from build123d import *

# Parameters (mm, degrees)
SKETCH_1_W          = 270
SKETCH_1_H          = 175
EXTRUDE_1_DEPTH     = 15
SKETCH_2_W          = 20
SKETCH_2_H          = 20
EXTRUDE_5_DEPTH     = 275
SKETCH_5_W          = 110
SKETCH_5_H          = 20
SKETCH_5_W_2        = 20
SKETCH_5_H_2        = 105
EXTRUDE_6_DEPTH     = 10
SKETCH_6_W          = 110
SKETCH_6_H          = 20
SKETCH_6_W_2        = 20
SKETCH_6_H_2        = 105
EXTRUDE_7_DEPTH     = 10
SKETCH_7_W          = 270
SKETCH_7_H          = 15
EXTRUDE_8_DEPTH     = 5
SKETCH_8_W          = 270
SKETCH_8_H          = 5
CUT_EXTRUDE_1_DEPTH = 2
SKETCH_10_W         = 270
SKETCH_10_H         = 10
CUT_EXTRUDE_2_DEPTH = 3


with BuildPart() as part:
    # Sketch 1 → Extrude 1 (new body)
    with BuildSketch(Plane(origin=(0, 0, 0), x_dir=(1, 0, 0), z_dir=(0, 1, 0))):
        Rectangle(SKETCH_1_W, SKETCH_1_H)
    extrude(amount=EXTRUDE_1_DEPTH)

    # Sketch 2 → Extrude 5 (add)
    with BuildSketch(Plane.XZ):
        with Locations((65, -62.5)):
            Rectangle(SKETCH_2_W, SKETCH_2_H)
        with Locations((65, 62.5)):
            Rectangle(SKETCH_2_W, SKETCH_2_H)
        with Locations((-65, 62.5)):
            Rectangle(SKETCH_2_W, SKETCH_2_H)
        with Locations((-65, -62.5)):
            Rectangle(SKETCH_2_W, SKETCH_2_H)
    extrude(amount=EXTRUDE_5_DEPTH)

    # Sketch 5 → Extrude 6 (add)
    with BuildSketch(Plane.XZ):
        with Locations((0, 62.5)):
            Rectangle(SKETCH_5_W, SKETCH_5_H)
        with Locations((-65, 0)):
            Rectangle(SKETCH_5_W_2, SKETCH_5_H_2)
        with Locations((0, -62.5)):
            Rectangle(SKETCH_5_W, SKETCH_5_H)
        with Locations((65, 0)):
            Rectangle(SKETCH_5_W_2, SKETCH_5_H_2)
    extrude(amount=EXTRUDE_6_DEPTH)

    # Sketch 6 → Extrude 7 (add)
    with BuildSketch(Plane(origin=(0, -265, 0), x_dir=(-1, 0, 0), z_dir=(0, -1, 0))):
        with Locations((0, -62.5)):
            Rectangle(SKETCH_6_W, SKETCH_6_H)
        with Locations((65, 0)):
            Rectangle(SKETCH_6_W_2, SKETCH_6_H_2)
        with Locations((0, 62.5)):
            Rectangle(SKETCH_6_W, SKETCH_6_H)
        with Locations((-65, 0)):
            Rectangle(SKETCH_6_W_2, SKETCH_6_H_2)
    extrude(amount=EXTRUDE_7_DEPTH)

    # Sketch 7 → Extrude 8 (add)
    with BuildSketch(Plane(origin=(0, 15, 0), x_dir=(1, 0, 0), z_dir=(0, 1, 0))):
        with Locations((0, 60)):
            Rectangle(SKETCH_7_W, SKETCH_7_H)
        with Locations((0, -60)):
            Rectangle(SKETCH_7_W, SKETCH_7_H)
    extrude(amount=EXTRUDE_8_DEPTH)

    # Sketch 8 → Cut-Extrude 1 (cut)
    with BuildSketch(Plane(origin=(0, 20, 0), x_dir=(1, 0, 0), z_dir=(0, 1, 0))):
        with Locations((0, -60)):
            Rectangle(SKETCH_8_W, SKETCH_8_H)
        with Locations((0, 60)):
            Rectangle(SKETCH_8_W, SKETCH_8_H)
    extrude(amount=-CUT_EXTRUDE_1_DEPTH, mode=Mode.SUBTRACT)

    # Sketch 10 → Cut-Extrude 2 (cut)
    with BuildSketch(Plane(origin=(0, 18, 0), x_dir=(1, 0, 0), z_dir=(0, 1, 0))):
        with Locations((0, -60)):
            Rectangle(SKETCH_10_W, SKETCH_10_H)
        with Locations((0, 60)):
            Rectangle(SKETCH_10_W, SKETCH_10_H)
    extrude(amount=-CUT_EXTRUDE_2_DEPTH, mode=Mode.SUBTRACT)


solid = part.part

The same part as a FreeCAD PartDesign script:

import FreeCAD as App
import Part
import Sketcher
from FreeCAD import Vector
Q = App.Units.Quantity

doc = App.newDocument("Part")
body = doc.addObject("PartDesign::Body", "Body")

sketch1 = body.newObject("Sketcher::SketchObject", "Sketch")
sketch1.AttachmentSupport = (doc.getObject("XZ_Plane"), [""])
sketch1.MapMode = "FlatFace"
sketch1.addGeometry(Part.LineSegment(Vector(-135, -88, 0), Vector(-135, 88, 0)), False)
sketch1.addGeometry(Part.LineSegment(Vector(-135, 88, 0), Vector(135, 88, 0)), False)
sketch1.addGeometry(Part.LineSegment(Vector(135, 88, 0), Vector(135, -88, 0)), False)
sketch1.addGeometry(Part.LineSegment(Vector(135, -88, 0), Vector(-135, -88, 0)), False)
sketch1.addConstraint(Sketcher.Constraint("Coincident", 0, 2, 1, 1))
sketch1.addConstraint(Sketcher.Constraint("Coincident", 1, 2, 2, 1))
sketch1.addConstraint(Sketcher.Constraint("Coincident", 2, 2, 3, 1))
sketch1.addConstraint(Sketcher.Constraint("Coincident", 3, 2, 0, 1))
sketch1.addConstraint(Sketcher.Constraint("Vertical", 0))
sketch1.addConstraint(Sketcher.Constraint("Horizontal", 1))
sketch1.addConstraint(Sketcher.Constraint("Vertical", 2))
sketch1.addConstraint(Sketcher.Constraint("Horizontal", 3))
sketch1.addConstraint(Sketcher.Constraint("Symmetric", 0, 2, 2, 2, -1, 1))
sketch1.addConstraint(Sketcher.Constraint("DistanceX", 1, 1, 1, 2, Q("270 mm")))
sketch1.addConstraint(Sketcher.Constraint("DistanceY", 0, 1, 0, 2, Q("175 mm")))
pad1 = body.newObject("PartDesign::Pad", "Pad")
pad1.Profile = sketch1
pad1.Length = 15
pad1.Reversed = True

sketch2 = body.newObject("Sketcher::SketchObject", "Sketch001")
sketch2.AttachmentSupport = (doc.getObject("XZ_Plane"), [""])
sketch2.MapMode = "FlatFace"
sketch2.addGeometry(Part.LineSegment(Vector(55, -52, 0), Vector(55, -72, 0)), False)
sketch2.addGeometry(Part.LineSegment(Vector(55, -72, 0), Vector(75, -72, 0)), False)
sketch2.addGeometry(Part.LineSegment(Vector(75, -72, 0), Vector(75, -52, 0)), False)
sketch2.addGeometry(Part.LineSegment(Vector(75, -52, 0), Vector(55, -52, 0)), False)
sketch2.addGeometry(Part.LineSegment(Vector(55, 72, 0), Vector(55, 52, 0)), False)
sketch2.addGeometry(Part.LineSegment(Vector(55, 52, 0), Vector(75, 52, 0)), False)
sketch2.addGeometry(Part.LineSegment(Vector(75, 52, 0), Vector(75, 72, 0)), False)
sketch2.addGeometry(Part.LineSegment(Vector(75, 72, 0), Vector(55, 72, 0)), False)
sketch2.addGeometry(Part.LineSegment(Vector(-75, 72, 0), Vector(-75, 52, 0)), False)
sketch2.addGeometry(Part.LineSegment(Vector(-75, 52, 0), Vector(-55, 52, 0)), False)
sketch2.addGeometry(Part.LineSegment(Vector(-55, 52, 0), Vector(-55, 72, 0)), False)
sketch2.addGeometry(Part.LineSegment(Vector(-55, 72, 0), Vector(-75, 72, 0)), False)
sketch2.addGeometry(Part.LineSegment(Vector(-75, -52, 0), Vector(-75, -72, 0)), False)
sketch2.addGeometry(Part.LineSegment(Vector(-75, -72, 0), Vector(-55, -72, 0)), False)
sketch2.addGeometry(Part.LineSegment(Vector(-55, -72, 0), Vector(-55, -52, 0)), False)
sketch2.addGeometry(Part.LineSegment(Vector(-55, -52, 0), Vector(-75, -52, 0)), False)
sketch2.addConstraint(Sketcher.Constraint("Coincident", 0, 2, 1, 1))
sketch2.addConstraint(Sketcher.Constraint("Coincident", 1, 2, 2, 1))
sketch2.addConstraint(Sketcher.Constraint("Coincident", 2, 2, 3, 1))
sketch2.addConstraint(Sketcher.Constraint("Coincident", 3, 2, 0, 1))
sketch2.addConstraint(Sketcher.Constraint("Coincident", 4, 2, 5, 1))
sketch2.addConstraint(Sketcher.Constraint("Coincident", 5, 2, 6, 1))
sketch2.addConstraint(Sketcher.Constraint("Coincident", 6, 2, 7, 1))
sketch2.addConstraint(Sketcher.Constraint("Coincident", 7, 2, 4, 1))
sketch2.addConstraint(Sketcher.Constraint("Coincident", 8, 2, 9, 1))
sketch2.addConstraint(Sketcher.Constraint("Coincident", 9, 2, 10, 1))
sketch2.addConstraint(Sketcher.Constraint("Coincident", 10, 2, 11, 1))
sketch2.addConstraint(Sketcher.Constraint("Coincident", 11, 2, 8, 1))
sketch2.addConstraint(Sketcher.Constraint("Coincident", 12, 2, 13, 1))
sketch2.addConstraint(Sketcher.Constraint("Coincident", 13, 2, 14, 1))
sketch2.addConstraint(Sketcher.Constraint("Coincident", 14, 2, 15, 1))
sketch2.addConstraint(Sketcher.Constraint("Coincident", 15, 2, 12, 1))
sketch2.addConstraint(Sketcher.Constraint("Vertical", 0))
sketch2.addConstraint(Sketcher.Constraint("Horizontal", 1))
sketch2.addConstraint(Sketcher.Constraint("Vertical", 2))
sketch2.addConstraint(Sketcher.Constraint("Horizontal", 3))
sketch2.addConstraint(Sketcher.Constraint("Vertical", 4))
sketch2.addConstraint(Sketcher.Constraint("Horizontal", 5))
sketch2.addConstraint(Sketcher.Constraint("Vertical", 6))
sketch2.addConstraint(Sketcher.Constraint("Horizontal", 7))
sketch2.addConstraint(Sketcher.Constraint("Vertical", 8))
sketch2.addConstraint(Sketcher.Constraint("Horizontal", 9))
sketch2.addConstraint(Sketcher.Constraint("Vertical", 10))
sketch2.addConstraint(Sketcher.Constraint("Horizontal", 11))
sketch2.addConstraint(Sketcher.Constraint("Vertical", 12))
sketch2.addConstraint(Sketcher.Constraint("Horizontal", 13))
sketch2.addConstraint(Sketcher.Constraint("Vertical", 14))
sketch2.addConstraint(Sketcher.Constraint("Horizontal", 15))
sketch2.addConstraint(Sketcher.Constraint("Symmetric", 2, 2, 8, 2, -1, 1))
sketch2.addConstraint(Sketcher.Constraint("Symmetric", 0, 2, 10, 2, -1, 1))
sketch2.addConstraint(Sketcher.Constraint("Symmetric", 6, 2, 12, 2, -1, 1))
sketch2.addConstraint(Sketcher.Constraint("Symmetric", 4, 2, 14, 2, -1, 1))
sketch2.addConstraint(Sketcher.Constraint("Symmetric", 5, 2, 8, 2, -2))
sketch2.addConstraint(Sketcher.Constraint("Symmetric", 7, 2, 10, 2, -2))
sketch2.addConstraint(Sketcher.Constraint("Equal", 15, 0))
sketch2.addConstraint(Sketcher.Constraint("DistanceX", 1, 1, 1, 2, Q("20 mm")))
sketch2.addConstraint(Sketcher.Constraint("DistanceX", -1, 1, 0, 2, Q("55 mm")))
sketch2.addConstraint(Sketcher.Constraint("DistanceY", 3, 2, 4, 2, Q("105 mm")))
pad2 = body.newObject("PartDesign::Pad", "Pad001")
pad2.Profile = sketch2
pad2.Length = 275

sketch3 = body.newObject("Sketcher::SketchObject", "Sketch002")
sketch3.AttachmentSupport = (doc.getObject("XZ_Plane"), [""])
sketch3.MapMode = "FlatFace"
sketch3.addGeometry(Part.LineSegment(Vector(-55, 72, 0), Vector(-55, 52, 0)), False)
sketch3.addGeometry(Part.LineSegment(Vector(-55, 52, 0), Vector(55, 52, 0)), False)
sketch3.addGeometry(Part.LineSegment(Vector(55, 52, 0), Vector(55, 72, 0)), False)
sketch3.addGeometry(Part.LineSegment(Vector(55, 72, 0), Vector(-55, 72, 0)), False)
sketch3.addGeometry(Part.LineSegment(Vector(-75, 52, 0), Vector(-75, -52, 0)), False)
sketch3.addGeometry(Part.LineSegment(Vector(-75, -52, 0), Vector(-55, -52, 0)), False)
sketch3.addGeometry(Part.LineSegment(Vector(-55, -52, 0), Vector(-55, 52, 0)), False)
sketch3.addGeometry(Part.LineSegment(Vector(-55, 52, 0), Vector(-75, 52, 0)), False)
sketch3.addGeometry(Part.LineSegment(Vector(-55, -52, 0), Vector(-55, -72, 0)), False)
sketch3.addGeometry(Part.LineSegment(Vector(-55, -72, 0), Vector(55, -72, 0)), False)
sketch3.addGeometry(Part.LineSegment(Vector(55, -72, 0), Vector(55, -52, 0)), False)
sketch3.addGeometry(Part.LineSegment(Vector(55, -52, 0), Vector(-55, -52, 0)), False)
sketch3.addGeometry(Part.LineSegment(Vector(55, 52, 0), Vector(55, -52, 0)), False)
sketch3.addGeometry(Part.LineSegment(Vector(55, -52, 0), Vector(75, -52, 0)), False)
sketch3.addGeometry(Part.LineSegment(Vector(75, -52, 0), Vector(75, 52, 0)), False)
sketch3.addGeometry(Part.LineSegment(Vector(75, 52, 0), Vector(55, 52, 0)), False)
sketch3.addConstraint(Sketcher.Constraint("Coincident", 0, 2, 1, 1))
sketch3.addConstraint(Sketcher.Constraint("Coincident", 1, 2, 2, 1))
sketch3.addConstraint(Sketcher.Constraint("Coincident", 2, 2, 3, 1))
sketch3.addConstraint(Sketcher.Constraint("Coincident", 3, 2, 0, 1))
sketch3.addConstraint(Sketcher.Constraint("Coincident", 4, 2, 5, 1))
sketch3.addConstraint(Sketcher.Constraint("Coincident", 5, 2, 6, 1))
sketch3.addConstraint(Sketcher.Constraint("Coincident", 6, 2, 7, 1))
sketch3.addConstraint(Sketcher.Constraint("Coincident", 7, 2, 4, 1))
sketch3.addConstraint(Sketcher.Constraint("Coincident", 8, 2, 9, 1))
sketch3.addConstraint(Sketcher.Constraint("Coincident", 9, 2, 10, 1))
sketch3.addConstraint(Sketcher.Constraint("Coincident", 10, 2, 11, 1))
sketch3.addConstraint(Sketcher.Constraint("Coincident", 11, 2, 8, 1))
sketch3.addConstraint(Sketcher.Constraint("Coincident", 12, 2, 13, 1))
sketch3.addConstraint(Sketcher.Constraint("Coincident", 13, 2, 14, 1))
sketch3.addConstraint(Sketcher.Constraint("Coincident", 14, 2, 15, 1))
sketch3.addConstraint(Sketcher.Constraint("Coincident", 15, 2, 12, 1))
sketch3.addConstraint(Sketcher.Constraint("Vertical", 0))
sketch3.addConstraint(Sketcher.Constraint("Horizontal", 1))
sketch3.addConstraint(Sketcher.Constraint("Vertical", 2))
sketch3.addConstraint(Sketcher.Constraint("Horizontal", 3))
sketch3.addConstraint(Sketcher.Constraint("Vertical", 4))
sketch3.addConstraint(Sketcher.Constraint("Horizontal", 5))
sketch3.addConstraint(Sketcher.Constraint("Vertical", 6))
sketch3.addConstraint(Sketcher.Constraint("Horizontal", 7))
sketch3.addConstraint(Sketcher.Constraint("Vertical", 8))
sketch3.addConstraint(Sketcher.Constraint("Horizontal", 9))
sketch3.addConstraint(Sketcher.Constraint("Vertical", 10))
sketch3.addConstraint(Sketcher.Constraint("Horizontal", 11))
sketch3.addConstraint(Sketcher.Constraint("Vertical", 12))
sketch3.addConstraint(Sketcher.Constraint("Horizontal", 13))
sketch3.addConstraint(Sketcher.Constraint("Vertical", 14))
sketch3.addConstraint(Sketcher.Constraint("Horizontal", 15))
sketch3.addConstraint(Sketcher.Constraint("Coincident", 6, 2, 0, 2))
sketch3.addConstraint(Sketcher.Constraint("Coincident", 11, 2, 5, 2))
sketch3.addConstraint(Sketcher.Constraint("Coincident", 12, 2, 10, 2))
sketch3.addConstraint(Sketcher.Constraint("Coincident", 15, 2, 1, 2))
sketch3.addConstraint(Sketcher.Constraint("Symmetric", 1, 2, 5, 2, -1, 1))
sketch3.addConstraint(Sketcher.Constraint("Equal", 7, 13))
sketch3.addConstraint(Sketcher.Constraint("Equal", 15, 0))
sketch3.addConstraint(Sketcher.Constraint("Equal", 2, 8))
sketch3.addConstraint(Sketcher.Constraint("DistanceX", 1, 1, 1, 2, Q("110 mm")))
sketch3.addConstraint(Sketcher.Constraint("DistanceX", 5, 1, 5, 2, Q("20 mm")))
sketch3.addConstraint(Sketcher.Constraint("DistanceY", 4, 2, 4, 1, Q("105 mm")))
pad3 = body.newObject("PartDesign::Pad", "Pad002")
pad3.Profile = sketch3
pad3.Length = 10

sketch4 = body.newObject("Sketcher::SketchObject", "Sketch003")
sketch4.AttachmentSupport = (doc.getObject("XZ_Plane"), [""])
sketch4.MapMode = "FlatFace"
sketch4.AttachmentOffset = App.Placement(Vector(0, 0, 265), App.Rotation())
sketch4.addGeometry(Part.LineSegment(Vector(55, 52, 0), Vector(55, 72, 0)), False)
sketch4.addGeometry(Part.LineSegment(Vector(55, 72, 0), Vector(-55, 72, 0)), False)
sketch4.addGeometry(Part.LineSegment(Vector(-55, 72, 0), Vector(-55, 52, 0)), False)
sketch4.addGeometry(Part.LineSegment(Vector(-55, 52, 0), Vector(55, 52, 0)), False)
sketch4.addGeometry(Part.LineSegment(Vector(-55, -52, 0), Vector(-55, 52, 0)), False)
sketch4.addGeometry(Part.LineSegment(Vector(-55, 52, 0), Vector(-75, 52, 0)), False)
sketch4.addGeometry(Part.LineSegment(Vector(-75, 52, 0), Vector(-75, -52, 0)), False)
sketch4.addGeometry(Part.LineSegment(Vector(-75, -52, 0), Vector(-55, -52, 0)), False)
sketch4.addGeometry(Part.LineSegment(Vector(55, -72, 0), Vector(55, -52, 0)), False)
sketch4.addGeometry(Part.LineSegment(Vector(55, -52, 0), Vector(-55, -52, 0)), False)
sketch4.addGeometry(Part.LineSegment(Vector(-55, -52, 0), Vector(-55, -72, 0)), False)
sketch4.addGeometry(Part.LineSegment(Vector(-55, -72, 0), Vector(55, -72, 0)), False)
sketch4.addGeometry(Part.LineSegment(Vector(75, -52, 0), Vector(75, 52, 0)), False)
sketch4.addGeometry(Part.LineSegment(Vector(75, 52, 0), Vector(55, 52, 0)), False)
sketch4.addGeometry(Part.LineSegment(Vector(55, 52, 0), Vector(55, -52, 0)), False)
sketch4.addGeometry(Part.LineSegment(Vector(55, -52, 0), Vector(75, -52, 0)), False)
sketch4.addConstraint(Sketcher.Constraint("Coincident", 0, 2, 1, 1))
sketch4.addConstraint(Sketcher.Constraint("Coincident", 1, 2, 2, 1))
sketch4.addConstraint(Sketcher.Constraint("Coincident", 2, 2, 3, 1))
sketch4.addConstraint(Sketcher.Constraint("Coincident", 3, 2, 0, 1))
sketch4.addConstraint(Sketcher.Constraint("Coincident", 4, 2, 5, 1))
sketch4.addConstraint(Sketcher.Constraint("Coincident", 5, 2, 6, 1))
sketch4.addConstraint(Sketcher.Constraint("Coincident", 6, 2, 7, 1))
sketch4.addConstraint(Sketcher.Constraint("Coincident", 7, 2, 4, 1))
sketch4.addConstraint(Sketcher.Constraint("Coincident", 8, 2, 9, 1))
sketch4.addConstraint(Sketcher.Constraint("Coincident", 9, 2, 10, 1))
sketch4.addConstraint(Sketcher.Constraint("Coincident", 10, 2, 11, 1))
sketch4.addConstraint(Sketcher.Constraint("Coincident", 11, 2, 8, 1))
sketch4.addConstraint(Sketcher.Constraint("Coincident", 12, 2, 13, 1))
sketch4.addConstraint(Sketcher.Constraint("Coincident", 13, 2, 14, 1))
sketch4.addConstraint(Sketcher.Constraint("Coincident", 14, 2, 15, 1))
sketch4.addConstraint(Sketcher.Constraint("Coincident", 15, 2, 12, 1))
sketch4.addConstraint(Sketcher.Constraint("Vertical", 0))
sketch4.addConstraint(Sketcher.Constraint("Horizontal", 1))
sketch4.addConstraint(Sketcher.Constraint("Vertical", 2))
sketch4.addConstraint(Sketcher.Constraint("Horizontal", 3))
sketch4.addConstraint(Sketcher.Constraint("Vertical", 4))
sketch4.addConstraint(Sketcher.Constraint("Horizontal", 5))
sketch4.addConstraint(Sketcher.Constraint("Vertical", 6))
sketch4.addConstraint(Sketcher.Constraint("Horizontal", 7))
sketch4.addConstraint(Sketcher.Constraint("Vertical", 8))
sketch4.addConstraint(Sketcher.Constraint("Horizontal", 9))
sketch4.addConstraint(Sketcher.Constraint("Vertical", 10))
sketch4.addConstraint(Sketcher.Constraint("Horizontal", 11))
sketch4.addConstraint(Sketcher.Constraint("Vertical", 12))
sketch4.addConstraint(Sketcher.Constraint("Horizontal", 13))
sketch4.addConstraint(Sketcher.Constraint("Vertical", 14))
sketch4.addConstraint(Sketcher.Constraint("Horizontal", 15))
sketch4.addConstraint(Sketcher.Constraint("Coincident", 4, 2, 2, 2))
sketch4.addConstraint(Sketcher.Constraint("Coincident", 9, 2, 7, 2))
sketch4.addConstraint(Sketcher.Constraint("Coincident", 13, 2, 3, 2))
sketch4.addConstraint(Sketcher.Constraint("Coincident", 14, 2, 8, 2))
sketch4.addConstraint(Sketcher.Constraint("Symmetric", 3, 2, 7, 2, -1, 1))
sketch4.addConstraint(Sketcher.Constraint("Equal", 7, 13))
sketch4.addConstraint(Sketcher.Constraint("Equal", 15, 0))
sketch4.addConstraint(Sketcher.Constraint("Equal", 2, 8))
sketch4.addConstraint(Sketcher.Constraint("DistanceX", 1, 2, 1, 1, Q("110 mm")))
sketch4.addConstraint(Sketcher.Constraint("DistanceX", 5, 2, 5, 1, Q("20 mm")))
sketch4.addConstraint(Sketcher.Constraint("DistanceY", 4, 1, 4, 2, Q("105 mm")))
pad4 = body.newObject("PartDesign::Pad", "Pad003")
pad4.Profile = sketch4
pad4.Length = 10

sketch5 = body.newObject("Sketcher::SketchObject", "Sketch004")
sketch5.AttachmentSupport = (doc.getObject("XZ_Plane"), [""])
sketch5.MapMode = "FlatFace"
sketch5.AttachmentOffset = App.Placement(Vector(0, 0, -15), App.Rotation())
sketch5.addGeometry(Part.LineSegment(Vector(-135, -68, 0), Vector(-135, -52, 0)), False)
sketch5.addGeometry(Part.LineSegment(Vector(-135, -52, 0), Vector(135, -52, 0)), False)
sketch5.addGeometry(Part.LineSegment(Vector(135, -52, 0), Vector(135, -68, 0)), False)
sketch5.addGeometry(Part.LineSegment(Vector(135, -68, 0), Vector(-135, -68, 0)), False)
sketch5.addGeometry(Part.LineSegment(Vector(-135, 52, 0), Vector(-135, 68, 0)), False)
sketch5.addGeometry(Part.LineSegment(Vector(-135, 68, 0), Vector(135, 68, 0)), False)
sketch5.addGeometry(Part.LineSegment(Vector(135, 68, 0), Vector(135, 52, 0)), False)
sketch5.addGeometry(Part.LineSegment(Vector(135, 52, 0), Vector(-135, 52, 0)), False)
sketch5.addConstraint(Sketcher.Constraint("Coincident", 0, 2, 1, 1))
sketch5.addConstraint(Sketcher.Constraint("Coincident", 1, 2, 2, 1))
sketch5.addConstraint(Sketcher.Constraint("Coincident", 2, 2, 3, 1))
sketch5.addConstraint(Sketcher.Constraint("Coincident", 3, 2, 0, 1))
sketch5.addConstraint(Sketcher.Constraint("Coincident", 4, 2, 5, 1))
sketch5.addConstraint(Sketcher.Constraint("Coincident", 5, 2, 6, 1))
sketch5.addConstraint(Sketcher.Constraint("Coincident", 6, 2, 7, 1))
sketch5.addConstraint(Sketcher.Constraint("Coincident", 7, 2, 4, 1))
sketch5.addConstraint(Sketcher.Constraint("Vertical", 0))
sketch5.addConstraint(Sketcher.Constraint("Horizontal", 1))
sketch5.addConstraint(Sketcher.Constraint("Vertical", 2))
sketch5.addConstraint(Sketcher.Constraint("Horizontal", 3))
sketch5.addConstraint(Sketcher.Constraint("Vertical", 4))
sketch5.addConstraint(Sketcher.Constraint("Horizontal", 5))
sketch5.addConstraint(Sketcher.Constraint("Vertical", 6))
sketch5.addConstraint(Sketcher.Constraint("Horizontal", 7))
sketch5.addConstraint(Sketcher.Constraint("Symmetric", 2, 2, 4, 2, -1, 1))
sketch5.addConstraint(Sketcher.Constraint("Symmetric", 0, 2, 6, 2, -1, 1))
sketch5.addConstraint(Sketcher.Constraint("Vertical", 3, 2, 4, 2))
sketch5.addConstraint(Sketcher.Constraint("DistanceX", 1, 1, 1, 2, Q("270 mm")))
sketch5.addConstraint(Sketcher.Constraint("DistanceY", 0, 1, 0, 2, Q("15 mm")))
sketch5.addConstraint(Sketcher.Constraint("DistanceY", 0, 2, 4, 2, Q("120 mm")))
pad5 = body.newObject("PartDesign::Pad", "Pad004")
pad5.Profile = sketch5
pad5.Length = 5
pad5.Reversed = True

sketch6 = body.newObject("Sketcher::SketchObject", "Sketch005")
sketch6.AttachmentSupport = (doc.getObject("XZ_Plane"), [""])
sketch6.MapMode = "FlatFace"
sketch6.AttachmentOffset = App.Placement(Vector(0, 0, -20), App.Rotation())
sketch6.addGeometry(Part.LineSegment(Vector(-135, 58, 0), Vector(-135, 62, 0)), False)
sketch6.addGeometry(Part.LineSegment(Vector(-135, 62, 0), Vector(135, 62, 0)), False)
sketch6.addGeometry(Part.LineSegment(Vector(135, 62, 0), Vector(135, 58, 0)), False)
sketch6.addGeometry(Part.LineSegment(Vector(135, 58, 0), Vector(-135, 58, 0)), False)
sketch6.addGeometry(Part.LineSegment(Vector(-135, -62, 0), Vector(-135, -58, 0)), False)
sketch6.addGeometry(Part.LineSegment(Vector(-135, -58, 0), Vector(135, -58, 0)), False)
sketch6.addGeometry(Part.LineSegment(Vector(135, -58, 0), Vector(135, -62, 0)), False)
sketch6.addGeometry(Part.LineSegment(Vector(135, -62, 0), Vector(-135, -62, 0)), False)
sketch6.addConstraint(Sketcher.Constraint("Coincident", 0, 2, 1, 1))
sketch6.addConstraint(Sketcher.Constraint("Coincident", 1, 2, 2, 1))
sketch6.addConstraint(Sketcher.Constraint("Coincident", 2, 2, 3, 1))
sketch6.addConstraint(Sketcher.Constraint("Coincident", 3, 2, 0, 1))
sketch6.addConstraint(Sketcher.Constraint("Coincident", 4, 2, 5, 1))
sketch6.addConstraint(Sketcher.Constraint("Coincident", 5, 2, 6, 1))
sketch6.addConstraint(Sketcher.Constraint("Coincident", 6, 2, 7, 1))
sketch6.addConstraint(Sketcher.Constraint("Coincident", 7, 2, 4, 1))
sketch6.addConstraint(Sketcher.Constraint("Vertical", 0))
sketch6.addConstraint(Sketcher.Constraint("Horizontal", 1))
sketch6.addConstraint(Sketcher.Constraint("Vertical", 2))
sketch6.addConstraint(Sketcher.Constraint("Horizontal", 3))
sketch6.addConstraint(Sketcher.Constraint("Vertical", 4))
sketch6.addConstraint(Sketcher.Constraint("Horizontal", 5))
sketch6.addConstraint(Sketcher.Constraint("Vertical", 6))
sketch6.addConstraint(Sketcher.Constraint("Horizontal", 7))
sketch6.addConstraint(Sketcher.Constraint("Symmetric", 2, 2, 4, 2, -1, 1))
sketch6.addConstraint(Sketcher.Constraint("Symmetric", 0, 2, 6, 2, -1, 1))
sketch6.addConstraint(Sketcher.Constraint("Vertical", 3, 2, 4, 2))
sketch6.addConstraint(Sketcher.Constraint("DistanceX", 1, 1, 1, 2, Q("270 mm")))
sketch6.addConstraint(Sketcher.Constraint("DistanceY", 0, 1, 0, 2, Q("5 mm")))
sketch6.addConstraint(Sketcher.Constraint("DistanceY", 4, 2, 3, 2, Q("115 mm")))
pocket1 = body.newObject("PartDesign::Pocket", "Pocket")
pocket1.Profile = sketch6
pocket1.Length = 2
pocket1.Reversed = True

sketch7 = body.newObject("Sketcher::SketchObject", "Sketch006")
sketch7.AttachmentSupport = (doc.getObject("XZ_Plane"), [""])
sketch7.MapMode = "FlatFace"
sketch7.AttachmentOffset = App.Placement(Vector(0, 0, -18), App.Rotation())
sketch7.addGeometry(Part.LineSegment(Vector(-135, 55, 0), Vector(-135, 65, 0)), False)
sketch7.addGeometry(Part.LineSegment(Vector(-135, 65, 0), Vector(135, 65, 0)), False)
sketch7.addGeometry(Part.LineSegment(Vector(135, 65, 0), Vector(135, 55, 0)), False)
sketch7.addGeometry(Part.LineSegment(Vector(135, 55, 0), Vector(-135, 55, 0)), False)
sketch7.addGeometry(Part.LineSegment(Vector(-135, -65, 0), Vector(-135, -55, 0)), False)
sketch7.addGeometry(Part.LineSegment(Vector(-135, -55, 0), Vector(135, -55, 0)), False)
sketch7.addGeometry(Part.LineSegment(Vector(135, -55, 0), Vector(135, -65, 0)), False)
sketch7.addGeometry(Part.LineSegment(Vector(135, -65, 0), Vector(-135, -65, 0)), False)
sketch7.addConstraint(Sketcher.Constraint("Coincident", 0, 2, 1, 1))
sketch7.addConstraint(Sketcher.Constraint("Coincident", 1, 2, 2, 1))
sketch7.addConstraint(Sketcher.Constraint("Coincident", 2, 2, 3, 1))
sketch7.addConstraint(Sketcher.Constraint("Coincident", 3, 2, 0, 1))
sketch7.addConstraint(Sketcher.Constraint("Coincident", 4, 2, 5, 1))
sketch7.addConstraint(Sketcher.Constraint("Coincident", 5, 2, 6, 1))
sketch7.addConstraint(Sketcher.Constraint("Coincident", 6, 2, 7, 1))
sketch7.addConstraint(Sketcher.Constraint("Coincident", 7, 2, 4, 1))
sketch7.addConstraint(Sketcher.Constraint("Vertical", 0))
sketch7.addConstraint(Sketcher.Constraint("Horizontal", 1))
sketch7.addConstraint(Sketcher.Constraint("Vertical", 2))
sketch7.addConstraint(Sketcher.Constraint("Horizontal", 3))
sketch7.addConstraint(Sketcher.Constraint("Vertical", 4))
sketch7.addConstraint(Sketcher.Constraint("Horizontal", 5))
sketch7.addConstraint(Sketcher.Constraint("Vertical", 6))
sketch7.addConstraint(Sketcher.Constraint("Horizontal", 7))
sketch7.addConstraint(Sketcher.Constraint("Symmetric", 2, 2, 4, 2, -1, 1))
sketch7.addConstraint(Sketcher.Constraint("Symmetric", 0, 2, 6, 2, -1, 1))
sketch7.addConstraint(Sketcher.Constraint("Vertical", 3, 2, 4, 2))
sketch7.addConstraint(Sketcher.Constraint("DistanceX", 1, 1, 1, 2, Q("270 mm")))
sketch7.addConstraint(Sketcher.Constraint("DistanceY", 0, 1, 0, 2, Q("10 mm")))
sketch7.addConstraint(Sketcher.Constraint("DistanceY", -1, 1, 0, 2, Q("65 mm")))
pocket2 = body.newObject("PartDesign::Pocket", "Pocket001")
pocket2.Profile = sketch7
pocket2.Length = 3
pocket2.Reversed = True

doc.recompute()
